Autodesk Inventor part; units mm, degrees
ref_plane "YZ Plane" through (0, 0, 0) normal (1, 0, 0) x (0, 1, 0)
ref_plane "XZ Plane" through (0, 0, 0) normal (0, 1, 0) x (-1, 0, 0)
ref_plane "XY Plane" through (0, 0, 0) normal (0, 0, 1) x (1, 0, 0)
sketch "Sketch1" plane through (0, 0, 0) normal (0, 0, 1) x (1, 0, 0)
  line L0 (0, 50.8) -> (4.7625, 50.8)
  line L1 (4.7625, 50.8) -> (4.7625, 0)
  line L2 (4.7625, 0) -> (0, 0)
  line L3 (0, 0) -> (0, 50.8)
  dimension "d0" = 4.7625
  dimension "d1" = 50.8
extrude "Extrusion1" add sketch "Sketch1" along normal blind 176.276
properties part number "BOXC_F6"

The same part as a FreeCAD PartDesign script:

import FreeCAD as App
import Part
import Sketcher
Q = App.Units.Quantity

doc = App.newDocument("Part")
body = doc.addObject("PartDesign::Body", "Body")

# Sketch on XY plane
sketch1 = body.newObject("Sketcher::SketchObject", "Sketch")
sketch1.AttachmentSupport = (doc.getObject("XY_Plane"), [""])
sketch1.MapMode = "FlatFace"
sketch1.addGeometry([
    Part.LineSegment(App.Vector(4.8, 50.8, 0), App.Vector(0, 50.8, 0)),
    Part.LineSegment(App.Vector(0, 50.8, 0), App.Vector(0, 0, 0)),
    Part.LineSegment(App.Vector(0, 0, 0), App.Vector(4.8, 0, 0)),
    Part.LineSegment(App.Vector(4.8, 0, 0), App.Vector(4.8, 50.8, 0)),
], False)
sketch1.addConstraint([
    Sketcher.Constraint("Coincident", 0, 2, 1, 1),
    Sketcher.Constraint("Coincident", 1, 2, 2, 1),
    Sketcher.Constraint("Coincident", 2, 2, 3, 1),
    Sketcher.Constraint("Coincident", 3, 2, 0, 1),
    Sketcher.Constraint("Horizontal", 0),
    Sketcher.Constraint("Vertical", 1),
    Sketcher.Constraint("Horizontal", 2),
    Sketcher.Constraint("Vertical", 3),
    Sketcher.Constraint("Coincident", 1, 2, -1, 1),
    Sketcher.Constraint("DistanceY", 1, 2, 1, 1, Q("2 in")),
    Sketcher.Constraint("DistanceX", 0, 2, 0, 1, Q("0.1875 in")),
])
pad1 = body.newObject("PartDesign::Pad", "Pad")
pad1.Profile = sketch1
pad1.Length = Q("6.94 in")

doc.recompute()
